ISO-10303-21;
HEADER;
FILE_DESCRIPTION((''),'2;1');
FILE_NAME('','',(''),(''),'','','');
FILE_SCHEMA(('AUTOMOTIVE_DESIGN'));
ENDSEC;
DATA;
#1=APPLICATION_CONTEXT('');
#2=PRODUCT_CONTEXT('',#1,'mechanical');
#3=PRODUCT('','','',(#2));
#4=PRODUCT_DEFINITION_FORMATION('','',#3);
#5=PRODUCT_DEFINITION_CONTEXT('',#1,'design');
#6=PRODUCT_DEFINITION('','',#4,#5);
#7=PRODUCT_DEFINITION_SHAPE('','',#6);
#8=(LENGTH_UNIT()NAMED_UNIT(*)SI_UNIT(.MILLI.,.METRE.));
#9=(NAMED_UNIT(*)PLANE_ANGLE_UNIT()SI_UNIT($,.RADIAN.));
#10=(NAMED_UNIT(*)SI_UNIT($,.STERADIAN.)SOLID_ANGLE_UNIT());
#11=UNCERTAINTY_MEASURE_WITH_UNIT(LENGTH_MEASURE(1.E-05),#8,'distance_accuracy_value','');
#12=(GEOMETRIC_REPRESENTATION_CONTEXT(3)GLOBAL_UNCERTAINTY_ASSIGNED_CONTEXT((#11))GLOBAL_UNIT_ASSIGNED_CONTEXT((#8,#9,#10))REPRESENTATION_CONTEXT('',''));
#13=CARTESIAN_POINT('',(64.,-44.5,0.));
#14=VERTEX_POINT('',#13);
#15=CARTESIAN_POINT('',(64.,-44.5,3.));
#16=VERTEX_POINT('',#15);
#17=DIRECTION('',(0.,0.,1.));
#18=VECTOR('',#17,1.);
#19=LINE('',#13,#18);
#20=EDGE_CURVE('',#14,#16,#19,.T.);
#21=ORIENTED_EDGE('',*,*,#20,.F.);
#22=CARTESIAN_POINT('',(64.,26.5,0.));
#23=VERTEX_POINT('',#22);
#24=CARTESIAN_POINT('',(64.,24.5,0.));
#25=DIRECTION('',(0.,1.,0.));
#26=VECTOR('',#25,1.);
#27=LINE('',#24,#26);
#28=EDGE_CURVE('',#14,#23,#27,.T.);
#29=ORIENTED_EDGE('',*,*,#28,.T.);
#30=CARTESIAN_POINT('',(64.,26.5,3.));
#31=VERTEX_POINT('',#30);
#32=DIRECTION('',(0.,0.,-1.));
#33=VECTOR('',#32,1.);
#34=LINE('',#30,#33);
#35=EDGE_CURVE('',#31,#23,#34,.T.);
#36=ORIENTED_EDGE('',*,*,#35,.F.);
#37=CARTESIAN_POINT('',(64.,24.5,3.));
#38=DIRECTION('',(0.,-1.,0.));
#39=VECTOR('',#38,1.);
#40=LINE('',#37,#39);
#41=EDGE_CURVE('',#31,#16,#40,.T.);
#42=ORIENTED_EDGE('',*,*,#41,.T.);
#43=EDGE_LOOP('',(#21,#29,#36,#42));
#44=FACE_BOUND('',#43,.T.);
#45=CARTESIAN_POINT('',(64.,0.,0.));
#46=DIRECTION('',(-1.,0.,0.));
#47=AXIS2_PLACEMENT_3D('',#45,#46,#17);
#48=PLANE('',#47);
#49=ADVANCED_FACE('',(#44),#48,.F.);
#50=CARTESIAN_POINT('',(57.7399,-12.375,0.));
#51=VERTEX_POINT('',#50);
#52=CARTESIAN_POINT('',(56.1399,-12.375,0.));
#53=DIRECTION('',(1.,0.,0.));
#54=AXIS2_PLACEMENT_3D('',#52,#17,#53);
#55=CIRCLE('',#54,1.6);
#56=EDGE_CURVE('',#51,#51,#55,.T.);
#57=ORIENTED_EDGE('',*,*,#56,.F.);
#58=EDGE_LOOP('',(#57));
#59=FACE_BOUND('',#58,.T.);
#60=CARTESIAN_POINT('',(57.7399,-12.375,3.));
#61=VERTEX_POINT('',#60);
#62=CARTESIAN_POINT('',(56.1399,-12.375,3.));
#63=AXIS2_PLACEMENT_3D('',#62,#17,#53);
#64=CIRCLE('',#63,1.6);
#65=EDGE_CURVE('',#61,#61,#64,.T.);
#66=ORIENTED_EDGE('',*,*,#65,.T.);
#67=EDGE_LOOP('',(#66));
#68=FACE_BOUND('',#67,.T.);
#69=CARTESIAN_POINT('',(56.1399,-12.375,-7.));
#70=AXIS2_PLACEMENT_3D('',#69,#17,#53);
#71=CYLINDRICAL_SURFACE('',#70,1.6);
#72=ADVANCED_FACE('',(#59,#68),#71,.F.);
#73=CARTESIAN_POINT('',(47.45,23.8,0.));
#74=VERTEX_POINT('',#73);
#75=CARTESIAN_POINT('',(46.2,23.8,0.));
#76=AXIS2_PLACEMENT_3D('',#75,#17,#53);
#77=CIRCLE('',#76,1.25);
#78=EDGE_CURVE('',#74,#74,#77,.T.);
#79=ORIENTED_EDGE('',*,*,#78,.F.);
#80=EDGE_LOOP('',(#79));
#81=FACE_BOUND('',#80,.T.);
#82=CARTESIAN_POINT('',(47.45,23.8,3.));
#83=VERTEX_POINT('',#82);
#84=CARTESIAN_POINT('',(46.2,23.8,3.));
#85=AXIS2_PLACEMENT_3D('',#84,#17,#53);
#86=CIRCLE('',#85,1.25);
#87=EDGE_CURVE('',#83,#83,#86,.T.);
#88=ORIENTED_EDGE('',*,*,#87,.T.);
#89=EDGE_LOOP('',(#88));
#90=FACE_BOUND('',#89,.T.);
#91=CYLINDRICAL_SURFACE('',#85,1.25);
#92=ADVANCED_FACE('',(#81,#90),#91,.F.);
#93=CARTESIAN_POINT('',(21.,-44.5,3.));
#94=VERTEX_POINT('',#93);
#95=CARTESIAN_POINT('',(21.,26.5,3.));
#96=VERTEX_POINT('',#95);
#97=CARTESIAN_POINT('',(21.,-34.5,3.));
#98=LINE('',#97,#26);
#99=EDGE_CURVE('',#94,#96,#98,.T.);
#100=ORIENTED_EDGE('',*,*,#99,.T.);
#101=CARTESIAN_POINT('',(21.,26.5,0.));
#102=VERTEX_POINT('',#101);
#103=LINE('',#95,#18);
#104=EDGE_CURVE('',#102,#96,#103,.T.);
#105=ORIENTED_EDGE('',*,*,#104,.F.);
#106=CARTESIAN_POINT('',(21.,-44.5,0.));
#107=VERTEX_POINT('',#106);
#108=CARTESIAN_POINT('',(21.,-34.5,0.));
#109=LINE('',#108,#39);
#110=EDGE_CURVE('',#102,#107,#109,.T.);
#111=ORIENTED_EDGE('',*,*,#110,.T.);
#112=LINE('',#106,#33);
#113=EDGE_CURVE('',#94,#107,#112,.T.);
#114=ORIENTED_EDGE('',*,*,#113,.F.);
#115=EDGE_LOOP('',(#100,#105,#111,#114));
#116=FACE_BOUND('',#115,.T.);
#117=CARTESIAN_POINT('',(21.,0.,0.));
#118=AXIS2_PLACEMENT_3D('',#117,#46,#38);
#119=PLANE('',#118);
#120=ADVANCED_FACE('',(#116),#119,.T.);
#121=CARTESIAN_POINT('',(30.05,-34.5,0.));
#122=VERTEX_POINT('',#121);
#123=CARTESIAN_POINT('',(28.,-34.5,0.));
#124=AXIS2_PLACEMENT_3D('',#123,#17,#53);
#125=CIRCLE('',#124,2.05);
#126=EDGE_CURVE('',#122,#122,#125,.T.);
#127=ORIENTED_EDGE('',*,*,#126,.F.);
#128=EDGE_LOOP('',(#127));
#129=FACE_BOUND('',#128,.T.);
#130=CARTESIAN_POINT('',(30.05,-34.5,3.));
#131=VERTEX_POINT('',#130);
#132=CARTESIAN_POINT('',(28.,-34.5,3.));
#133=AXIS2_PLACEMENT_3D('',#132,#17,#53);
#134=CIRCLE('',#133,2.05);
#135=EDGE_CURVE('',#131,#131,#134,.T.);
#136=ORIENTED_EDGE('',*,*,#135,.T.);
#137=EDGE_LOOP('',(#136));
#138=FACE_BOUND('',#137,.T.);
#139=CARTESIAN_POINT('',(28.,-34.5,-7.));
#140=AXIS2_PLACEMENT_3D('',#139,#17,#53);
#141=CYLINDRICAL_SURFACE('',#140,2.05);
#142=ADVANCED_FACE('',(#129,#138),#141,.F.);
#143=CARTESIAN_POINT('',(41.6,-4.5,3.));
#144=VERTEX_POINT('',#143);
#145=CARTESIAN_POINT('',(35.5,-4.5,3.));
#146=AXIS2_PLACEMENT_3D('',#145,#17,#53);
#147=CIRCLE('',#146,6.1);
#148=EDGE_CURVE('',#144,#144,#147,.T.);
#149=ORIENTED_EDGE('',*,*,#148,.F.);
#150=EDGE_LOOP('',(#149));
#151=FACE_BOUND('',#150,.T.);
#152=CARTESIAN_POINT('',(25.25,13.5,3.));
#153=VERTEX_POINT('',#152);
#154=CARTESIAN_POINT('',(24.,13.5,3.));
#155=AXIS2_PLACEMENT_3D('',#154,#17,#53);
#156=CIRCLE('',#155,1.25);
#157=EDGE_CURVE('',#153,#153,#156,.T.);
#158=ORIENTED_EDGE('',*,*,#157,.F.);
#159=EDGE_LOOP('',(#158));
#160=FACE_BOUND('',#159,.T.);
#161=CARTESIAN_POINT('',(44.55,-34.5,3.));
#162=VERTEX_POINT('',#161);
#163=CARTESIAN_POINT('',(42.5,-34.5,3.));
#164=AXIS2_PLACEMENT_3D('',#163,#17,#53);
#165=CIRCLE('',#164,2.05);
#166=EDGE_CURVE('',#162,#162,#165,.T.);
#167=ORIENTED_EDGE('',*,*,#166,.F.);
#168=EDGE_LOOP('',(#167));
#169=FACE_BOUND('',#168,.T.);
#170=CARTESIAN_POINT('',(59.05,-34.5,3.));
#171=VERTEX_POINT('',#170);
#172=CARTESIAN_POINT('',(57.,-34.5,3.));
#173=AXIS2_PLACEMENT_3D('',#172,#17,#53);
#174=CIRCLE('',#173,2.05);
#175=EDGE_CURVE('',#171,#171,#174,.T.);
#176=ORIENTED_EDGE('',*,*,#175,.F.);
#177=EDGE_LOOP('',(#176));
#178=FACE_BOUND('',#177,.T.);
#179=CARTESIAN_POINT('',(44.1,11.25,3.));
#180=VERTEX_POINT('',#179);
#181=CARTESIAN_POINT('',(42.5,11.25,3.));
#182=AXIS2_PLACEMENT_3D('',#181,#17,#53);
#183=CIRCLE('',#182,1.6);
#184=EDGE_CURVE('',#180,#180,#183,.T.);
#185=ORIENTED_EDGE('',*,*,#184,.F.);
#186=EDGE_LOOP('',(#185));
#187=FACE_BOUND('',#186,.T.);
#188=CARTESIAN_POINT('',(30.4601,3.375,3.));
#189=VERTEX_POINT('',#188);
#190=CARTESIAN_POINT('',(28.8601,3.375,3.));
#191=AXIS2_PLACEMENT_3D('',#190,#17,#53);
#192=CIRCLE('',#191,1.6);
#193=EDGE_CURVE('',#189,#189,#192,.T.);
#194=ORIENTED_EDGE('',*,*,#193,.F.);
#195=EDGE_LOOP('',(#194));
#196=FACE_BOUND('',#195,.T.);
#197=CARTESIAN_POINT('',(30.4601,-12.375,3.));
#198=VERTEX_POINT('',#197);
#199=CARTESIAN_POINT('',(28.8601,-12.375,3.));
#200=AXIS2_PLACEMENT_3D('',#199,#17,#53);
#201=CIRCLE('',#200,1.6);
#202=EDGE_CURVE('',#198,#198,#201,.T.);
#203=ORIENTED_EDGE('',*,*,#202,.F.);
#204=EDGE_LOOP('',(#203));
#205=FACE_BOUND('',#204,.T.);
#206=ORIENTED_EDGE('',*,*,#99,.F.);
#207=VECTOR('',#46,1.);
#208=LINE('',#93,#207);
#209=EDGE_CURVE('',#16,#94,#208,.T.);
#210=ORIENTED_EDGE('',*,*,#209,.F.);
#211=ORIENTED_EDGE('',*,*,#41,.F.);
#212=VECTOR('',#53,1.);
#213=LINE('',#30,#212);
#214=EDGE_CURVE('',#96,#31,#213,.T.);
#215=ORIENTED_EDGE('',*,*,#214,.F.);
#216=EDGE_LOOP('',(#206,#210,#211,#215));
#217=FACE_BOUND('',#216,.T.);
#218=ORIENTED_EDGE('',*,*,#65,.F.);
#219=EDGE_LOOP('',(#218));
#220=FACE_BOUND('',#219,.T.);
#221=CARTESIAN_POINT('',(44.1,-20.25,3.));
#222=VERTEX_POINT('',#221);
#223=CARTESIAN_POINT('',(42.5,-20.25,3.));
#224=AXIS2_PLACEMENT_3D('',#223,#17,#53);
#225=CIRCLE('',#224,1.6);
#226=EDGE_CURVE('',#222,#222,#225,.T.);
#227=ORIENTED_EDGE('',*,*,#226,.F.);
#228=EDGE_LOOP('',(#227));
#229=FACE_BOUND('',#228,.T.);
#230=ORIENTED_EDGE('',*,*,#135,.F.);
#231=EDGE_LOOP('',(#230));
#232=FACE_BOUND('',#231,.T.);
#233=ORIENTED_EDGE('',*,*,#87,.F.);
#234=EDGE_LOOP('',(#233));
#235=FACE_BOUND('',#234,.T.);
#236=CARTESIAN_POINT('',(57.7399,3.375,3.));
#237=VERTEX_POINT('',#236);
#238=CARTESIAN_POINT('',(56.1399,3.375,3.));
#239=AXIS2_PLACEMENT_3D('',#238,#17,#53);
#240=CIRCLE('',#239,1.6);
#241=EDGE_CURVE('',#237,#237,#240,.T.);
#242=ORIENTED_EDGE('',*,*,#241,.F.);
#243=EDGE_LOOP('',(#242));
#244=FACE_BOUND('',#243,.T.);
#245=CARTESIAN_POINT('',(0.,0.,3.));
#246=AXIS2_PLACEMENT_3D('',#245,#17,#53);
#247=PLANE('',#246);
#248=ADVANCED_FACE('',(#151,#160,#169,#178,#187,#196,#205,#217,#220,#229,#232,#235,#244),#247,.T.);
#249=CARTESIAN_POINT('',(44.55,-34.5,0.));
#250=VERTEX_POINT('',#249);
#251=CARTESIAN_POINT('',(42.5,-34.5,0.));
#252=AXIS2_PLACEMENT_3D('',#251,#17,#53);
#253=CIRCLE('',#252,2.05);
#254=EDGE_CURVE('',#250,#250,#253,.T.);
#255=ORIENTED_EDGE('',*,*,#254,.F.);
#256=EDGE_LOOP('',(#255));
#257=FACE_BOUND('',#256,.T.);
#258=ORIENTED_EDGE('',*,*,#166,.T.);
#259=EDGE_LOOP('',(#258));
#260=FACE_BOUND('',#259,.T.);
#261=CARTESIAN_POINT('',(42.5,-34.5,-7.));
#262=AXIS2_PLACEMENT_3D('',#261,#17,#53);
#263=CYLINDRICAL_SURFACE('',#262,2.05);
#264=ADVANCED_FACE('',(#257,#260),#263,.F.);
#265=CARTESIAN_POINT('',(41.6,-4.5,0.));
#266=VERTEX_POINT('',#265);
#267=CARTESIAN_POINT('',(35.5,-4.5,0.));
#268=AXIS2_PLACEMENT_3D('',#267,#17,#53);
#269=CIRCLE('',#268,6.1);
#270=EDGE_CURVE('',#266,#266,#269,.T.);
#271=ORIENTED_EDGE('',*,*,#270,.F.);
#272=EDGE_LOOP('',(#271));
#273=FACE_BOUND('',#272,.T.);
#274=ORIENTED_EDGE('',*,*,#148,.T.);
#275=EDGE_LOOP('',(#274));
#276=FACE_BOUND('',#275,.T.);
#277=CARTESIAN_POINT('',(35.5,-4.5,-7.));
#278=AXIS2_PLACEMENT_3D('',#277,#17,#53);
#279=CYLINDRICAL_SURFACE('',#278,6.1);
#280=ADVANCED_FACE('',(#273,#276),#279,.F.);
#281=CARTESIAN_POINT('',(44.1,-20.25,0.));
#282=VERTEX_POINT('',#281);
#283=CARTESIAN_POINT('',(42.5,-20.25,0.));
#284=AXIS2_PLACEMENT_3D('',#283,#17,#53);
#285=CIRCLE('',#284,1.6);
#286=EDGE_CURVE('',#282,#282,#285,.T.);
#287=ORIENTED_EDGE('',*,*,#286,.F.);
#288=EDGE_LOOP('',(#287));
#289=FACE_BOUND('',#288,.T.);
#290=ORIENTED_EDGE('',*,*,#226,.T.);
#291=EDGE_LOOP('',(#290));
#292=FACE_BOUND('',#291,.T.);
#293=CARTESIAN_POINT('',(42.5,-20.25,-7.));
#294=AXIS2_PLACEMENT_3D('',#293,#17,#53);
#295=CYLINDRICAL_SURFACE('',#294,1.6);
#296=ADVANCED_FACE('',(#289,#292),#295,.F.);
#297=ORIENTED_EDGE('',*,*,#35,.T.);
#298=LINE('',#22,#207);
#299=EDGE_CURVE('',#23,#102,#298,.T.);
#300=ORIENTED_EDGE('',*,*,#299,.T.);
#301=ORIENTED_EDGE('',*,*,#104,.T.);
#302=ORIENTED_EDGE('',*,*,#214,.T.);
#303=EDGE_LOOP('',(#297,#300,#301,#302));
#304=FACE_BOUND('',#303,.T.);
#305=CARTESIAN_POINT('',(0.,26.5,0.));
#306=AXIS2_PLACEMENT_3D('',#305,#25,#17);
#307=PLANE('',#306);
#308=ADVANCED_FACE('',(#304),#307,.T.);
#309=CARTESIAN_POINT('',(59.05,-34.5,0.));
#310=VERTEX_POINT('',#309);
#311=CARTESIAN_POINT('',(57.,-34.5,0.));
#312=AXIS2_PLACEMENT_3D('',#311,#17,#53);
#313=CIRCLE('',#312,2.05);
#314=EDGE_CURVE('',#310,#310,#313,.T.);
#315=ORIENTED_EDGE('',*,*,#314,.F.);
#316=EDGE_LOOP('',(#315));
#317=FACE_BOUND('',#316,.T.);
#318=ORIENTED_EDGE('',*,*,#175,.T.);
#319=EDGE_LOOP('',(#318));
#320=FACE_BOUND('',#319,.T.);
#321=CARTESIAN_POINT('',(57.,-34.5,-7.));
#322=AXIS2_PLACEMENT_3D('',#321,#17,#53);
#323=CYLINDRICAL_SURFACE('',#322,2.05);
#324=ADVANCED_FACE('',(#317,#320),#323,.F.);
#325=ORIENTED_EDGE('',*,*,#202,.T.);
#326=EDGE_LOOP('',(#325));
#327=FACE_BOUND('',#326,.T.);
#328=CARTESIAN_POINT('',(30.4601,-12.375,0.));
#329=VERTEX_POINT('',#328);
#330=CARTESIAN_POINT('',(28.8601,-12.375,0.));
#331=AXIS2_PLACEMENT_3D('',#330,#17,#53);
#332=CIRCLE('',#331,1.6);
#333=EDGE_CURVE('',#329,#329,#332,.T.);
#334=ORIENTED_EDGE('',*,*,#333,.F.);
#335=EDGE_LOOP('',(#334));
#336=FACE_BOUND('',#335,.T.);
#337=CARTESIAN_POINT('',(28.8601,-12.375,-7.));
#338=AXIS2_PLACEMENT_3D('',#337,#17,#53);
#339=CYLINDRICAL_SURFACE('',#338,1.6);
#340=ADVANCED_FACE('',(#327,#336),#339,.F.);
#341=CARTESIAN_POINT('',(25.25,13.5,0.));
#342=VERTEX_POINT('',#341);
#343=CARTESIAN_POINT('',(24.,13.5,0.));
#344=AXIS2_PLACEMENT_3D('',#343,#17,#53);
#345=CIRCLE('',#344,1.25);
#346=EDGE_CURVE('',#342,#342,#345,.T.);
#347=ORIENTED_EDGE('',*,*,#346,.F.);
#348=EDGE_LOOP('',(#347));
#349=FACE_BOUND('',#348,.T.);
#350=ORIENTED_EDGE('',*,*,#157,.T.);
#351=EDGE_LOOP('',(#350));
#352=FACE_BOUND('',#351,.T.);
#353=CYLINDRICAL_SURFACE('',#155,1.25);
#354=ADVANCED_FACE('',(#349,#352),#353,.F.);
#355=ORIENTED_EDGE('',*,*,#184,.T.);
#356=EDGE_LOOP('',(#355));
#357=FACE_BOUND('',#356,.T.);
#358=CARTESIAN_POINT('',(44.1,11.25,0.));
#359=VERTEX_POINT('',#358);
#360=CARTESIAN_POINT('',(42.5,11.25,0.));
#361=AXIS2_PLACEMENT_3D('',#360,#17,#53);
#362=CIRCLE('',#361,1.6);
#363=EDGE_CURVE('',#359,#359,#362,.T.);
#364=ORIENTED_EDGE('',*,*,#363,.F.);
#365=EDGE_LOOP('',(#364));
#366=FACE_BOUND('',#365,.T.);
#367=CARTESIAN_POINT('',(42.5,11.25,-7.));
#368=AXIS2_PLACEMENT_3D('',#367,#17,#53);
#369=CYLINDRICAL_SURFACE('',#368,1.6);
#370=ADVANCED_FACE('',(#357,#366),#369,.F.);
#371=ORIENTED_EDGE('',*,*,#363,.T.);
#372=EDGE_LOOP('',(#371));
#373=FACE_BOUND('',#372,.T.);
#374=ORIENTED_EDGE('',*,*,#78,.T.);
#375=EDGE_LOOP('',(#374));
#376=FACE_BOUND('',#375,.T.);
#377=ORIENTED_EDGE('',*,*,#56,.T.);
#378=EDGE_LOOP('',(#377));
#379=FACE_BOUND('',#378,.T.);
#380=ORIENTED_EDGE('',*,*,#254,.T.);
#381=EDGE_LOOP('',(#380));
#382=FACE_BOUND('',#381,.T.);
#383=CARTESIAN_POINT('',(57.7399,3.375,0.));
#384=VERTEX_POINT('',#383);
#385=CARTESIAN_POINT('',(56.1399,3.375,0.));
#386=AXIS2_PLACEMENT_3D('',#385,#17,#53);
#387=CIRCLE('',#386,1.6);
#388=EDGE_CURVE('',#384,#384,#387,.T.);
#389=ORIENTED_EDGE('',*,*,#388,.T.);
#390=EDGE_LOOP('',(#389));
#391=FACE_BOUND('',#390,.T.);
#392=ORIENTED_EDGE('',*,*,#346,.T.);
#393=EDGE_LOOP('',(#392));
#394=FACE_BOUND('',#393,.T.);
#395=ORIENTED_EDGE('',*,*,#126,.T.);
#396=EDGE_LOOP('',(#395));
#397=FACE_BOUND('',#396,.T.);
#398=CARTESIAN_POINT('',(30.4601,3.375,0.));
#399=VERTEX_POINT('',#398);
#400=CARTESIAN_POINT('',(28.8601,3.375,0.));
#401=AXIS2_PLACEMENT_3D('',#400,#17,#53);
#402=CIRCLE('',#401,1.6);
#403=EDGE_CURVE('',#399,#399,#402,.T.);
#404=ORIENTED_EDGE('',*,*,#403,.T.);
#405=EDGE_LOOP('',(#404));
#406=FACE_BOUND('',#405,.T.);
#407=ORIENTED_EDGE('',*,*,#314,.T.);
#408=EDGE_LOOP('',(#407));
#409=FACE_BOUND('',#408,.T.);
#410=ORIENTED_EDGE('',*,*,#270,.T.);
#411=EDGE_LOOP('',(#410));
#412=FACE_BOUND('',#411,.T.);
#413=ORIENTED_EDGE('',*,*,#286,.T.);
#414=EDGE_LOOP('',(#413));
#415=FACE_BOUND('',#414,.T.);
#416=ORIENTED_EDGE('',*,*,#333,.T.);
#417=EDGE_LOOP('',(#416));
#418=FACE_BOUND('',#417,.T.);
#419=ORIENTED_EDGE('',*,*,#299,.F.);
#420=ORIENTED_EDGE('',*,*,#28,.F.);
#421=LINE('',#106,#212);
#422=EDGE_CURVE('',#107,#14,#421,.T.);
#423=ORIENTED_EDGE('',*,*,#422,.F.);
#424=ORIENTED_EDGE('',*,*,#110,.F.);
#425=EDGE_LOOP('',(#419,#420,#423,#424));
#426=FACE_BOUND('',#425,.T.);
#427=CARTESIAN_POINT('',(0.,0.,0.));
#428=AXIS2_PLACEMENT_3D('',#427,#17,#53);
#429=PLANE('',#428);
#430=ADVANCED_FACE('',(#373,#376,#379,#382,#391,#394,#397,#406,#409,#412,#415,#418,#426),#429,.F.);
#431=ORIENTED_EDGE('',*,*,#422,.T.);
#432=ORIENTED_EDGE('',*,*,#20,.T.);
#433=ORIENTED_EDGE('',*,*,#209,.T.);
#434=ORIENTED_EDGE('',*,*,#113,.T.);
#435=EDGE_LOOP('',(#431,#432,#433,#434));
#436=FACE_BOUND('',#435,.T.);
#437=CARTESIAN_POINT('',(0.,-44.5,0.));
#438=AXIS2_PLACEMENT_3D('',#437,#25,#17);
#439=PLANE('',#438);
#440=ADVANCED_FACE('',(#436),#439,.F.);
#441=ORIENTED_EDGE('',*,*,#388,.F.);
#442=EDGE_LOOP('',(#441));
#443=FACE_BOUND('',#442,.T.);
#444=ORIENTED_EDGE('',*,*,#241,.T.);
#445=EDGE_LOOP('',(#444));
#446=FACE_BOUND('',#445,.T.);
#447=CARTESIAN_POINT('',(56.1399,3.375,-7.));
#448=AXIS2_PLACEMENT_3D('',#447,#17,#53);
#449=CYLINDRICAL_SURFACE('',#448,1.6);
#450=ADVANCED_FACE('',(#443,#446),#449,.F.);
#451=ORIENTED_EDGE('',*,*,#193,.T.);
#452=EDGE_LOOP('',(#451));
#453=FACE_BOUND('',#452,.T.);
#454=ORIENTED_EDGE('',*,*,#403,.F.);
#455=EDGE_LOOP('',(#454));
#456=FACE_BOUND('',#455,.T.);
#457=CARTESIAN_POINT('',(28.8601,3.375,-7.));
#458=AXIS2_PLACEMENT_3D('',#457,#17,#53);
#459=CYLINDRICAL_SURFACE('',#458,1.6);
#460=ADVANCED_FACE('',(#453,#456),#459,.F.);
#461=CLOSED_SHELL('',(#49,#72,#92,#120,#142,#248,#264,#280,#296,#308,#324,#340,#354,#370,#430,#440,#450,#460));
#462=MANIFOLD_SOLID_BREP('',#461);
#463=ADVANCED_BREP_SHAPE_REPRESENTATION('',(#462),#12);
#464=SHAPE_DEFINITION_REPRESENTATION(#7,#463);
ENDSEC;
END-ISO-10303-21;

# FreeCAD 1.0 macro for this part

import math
import FreeCAD as App
import Part
import Sketcher

V = App.Vector
Q = App.Units.Quantity


def add_polygon(sketch, points):
    """Adds a closed chain of lines whose ends are joined by coincident constraints."""
    first, n = sketch.GeometryCount, len(points)
    for a, b in zip(points, points[1:] + points[:1]):
        sketch.addGeometry(Part.LineSegment(App.Vector(*a, 0), App.Vector(*b, 0)), False)
    for i in range(n):
        sketch.addConstraint(Sketcher.Constraint("Coincident", first + i, 2, first + (i + 1) % n, 1))

doc = App.newDocument("Part")
body = doc.addObject("PartDesign::Body", "Body")

# Sketch on XY plane
sketch1 = body.newObject("Sketcher::SketchObject", "Sketch")
sketch1.AttachmentSupport = (doc.getObject("XY_Plane"), [""])
sketch1.MapMode = "FlatFace"
add_polygon(sketch1, [(-20, 14), (-20, -14), (20, -14), (20, 14)])  # lines 0-3
sketch1.addConstraint([
    Sketcher.Constraint("Vertical", 0),
    Sketcher.Constraint("Horizontal", 1),
    Sketcher.Constraint("Vertical", 2),
    Sketcher.Constraint("Horizontal", 3),
    Sketcher.Constraint("Symmetric", 0, 2, 2, 2, -1, 1),
    Sketcher.Constraint("DistanceX", 1, 1, 1, 2, Q("40 mm")),
    Sketcher.Constraint("DistanceY", 0, 2, 0, 1, Q("29 mm")),
])
pad1 = body.newObject("PartDesign::Pad", "Pad")
pad1.Profile = sketch1
pad1.Length = 3

# Sketch on XY plane
sketch2 = body.newObject("Sketcher::SketchObject", "Sketch001")
sketch2.AttachmentSupport = (doc.getObject("XY_Plane"), [""])
sketch2.MapMode = "FlatFace"
sketch2.AttachmentOffset = App.Placement(V(0, 0, 3), App.Rotation())
sketch2.addGeometry([
    Part.ArcOfCircle(Part.Circle(V(-16.5, 10.5, 0), V(0, 0, 1), 2.1), math.radians(0), math.radians(90)),  # 0
    Part.ArcOfCircle(Part.Circle(V(-16.5, 10.5, 0), V(0, 0, 1), 2.1), math.radians(90), math.radians(180)),  # 1
    Part.ArcOfCircle(Part.Circle(V(-16.5, 10.5, 0), V(0, 0, 1), 2.1), math.radians(180), math.radians(360)),  # 2
    Part.ArcOfCircle(Part.Circle(V(-16.5, -10.5, 0), V(0, 0, 1), 2.1), math.radians(-180), math.radians(-90)),  # 3
    Part.ArcOfCircle(Part.Circle(V(-16.5, -10.5, 0), V(0, 0, 1), 2.1), math.radians(-90), math.radians(0)),  # 4
    Part.ArcOfCircle(Part.Circle(V(-16.5, -10.5, 0), V(0, 0, 1), 2.1), math.radians(0), math.radians(180)),  # 5
    Part.ArcOfCircle(Part.Circle(V(16.5, -10.5, 0), V(0, 0, 1), 2.1), math.radians(0), math.radians(270)),  # 6
    Part.ArcOfCircle(Part.Circle(V(16.5, -10.5, 0), V(0, 0, 1), 2.1), math.radians(-90), math.radians(0)),  # 7
    Part.ArcOfCircle(Part.Circle(V(16.5, 10.5, 0), V(0, 0, 1), 2.1), math.radians(0), math.radians(90)),  # 8
    Part.ArcOfCircle(Part.Circle(V(16.5, 10.5, 0), V(0, 0, 1), 2.1), math.radians(90), math.radians(360)),  # 9
], False)
sketch2.addConstraint([
    Sketcher.Constraint("Tangent", 0, 2, 1, 1),
    Sketcher.Constraint("Tangent", 1, 2, 2, 1),
    Sketcher.Constraint("Tangent", 2, 2, 0, 1),
    Sketcher.Constraint("Tangent", 3, 2, 4, 1),
    Sketcher.Constraint("Tangent", 4, 2, 5, 1),
    Sketcher.Constraint("Tangent", 5, 2, 3, 1),
    Sketcher.Constraint("Tangent", 6, 1, 7, 2),
    Sketcher.Constraint("Coincident", 7, 1, 6, 2),
    Sketcher.Constraint("Tangent", 8, 1, 9, 2),
    Sketcher.Constraint("Coincident", 9, 1, 8, 2),
    Sketcher.Constraint("Equal", 2, 3),
    Sketcher.Constraint("Equal", 5, 6),
    Sketcher.Constraint("Equal", 7, 8),
    Sketcher.Constraint("Symmetric", 0, 3, 6, 3, -1, 1),
    Sketcher.Constraint("Symmetric", 3, 3, 8, 3, -1, 1),
    Sketcher.Constraint("Symmetric", 3, 3, 6, 3, -2),
    Sketcher.Constraint("Horizontal", 9, 3, 1, 2),
    Sketcher.Constraint("Horizontal", 1, 2, 2, 2),
    Sketcher.Constraint("Horizontal", 7, 3, 4, 2),
    Sketcher.Constraint("Horizontal", 4, 2, 5, 2),
    Sketcher.Constraint("Horizontal", 5, 2, 6, 1),
    Sketcher.Constraint("Horizontal", 2, 2, 8, 1),
    Sketcher.Constraint("Vertical", 5, 3, 0, 2),
    Sketcher.Constraint("Vertical", 0, 2, 3, 2),
    Sketcher.Constraint("Vertical", 9, 3, 7, 1),
    Sketcher.Constraint("Vertical", 7, 1, 9, 1),
    Sketcher.Constraint("Radius", 0, Q("2.1 mm")),
    Sketcher.Constraint("DistanceY", 3, 3, 0, 3, Q("21 mm")),
    Sketcher.Constraint("DistanceX", 3, 3, 6, 3, Q("33 mm")),
])
pocket1 = body.newObject("PartDesign::Pocket", "Pocket")
pocket1.Profile = sketch2
pocket1.Length = 3

# Sketch on XZ plane
sketch3 = body.newObject("Sketcher::SketchObject", "Sketch002")
sketch3.AttachmentSupport = (doc.getObject("XZ_Plane"), [""])
sketch3.MapMode = "FlatFace"
sketch3.AttachmentOffset = App.Placement(V(0, 0, 14.5), App.Rotation())
add_polygon(sketch3, [(-20, 3), (-20, 0), (20, 0), (20, 3)])  # lines 0-3
sketch3.addConstraint([
    Sketcher.Constraint("Vertical", 0),
    Sketcher.Constraint("Horizontal", 1),
    Sketcher.Constraint("Vertical", 2),
    Sketcher.Constraint("Horizontal", 3),
    Sketcher.Constraint("Symmetric", 0, 2, 1, 2, -1, 1),
    Sketcher.Constraint("DistanceX", 1, 1, 1, 2, Q("40 mm")),
    Sketcher.Constraint("DistanceY", 0, 2, 0, 1, Q("3 mm")),
])
pad2 = body.newObject("PartDesign::Pad", "Pad001")
pad2.Profile = sketch3
pad2.Length = 10

# Sketch on XZ plane
sketch4 = body.newObject("Sketcher::SketchObject", "Sketch003")
sketch4.AttachmentSupport = (doc.getObject("XZ_Plane"), [""])
sketch4.MapMode = "FlatFace"
sketch4.AttachmentOffset = App.Placement(V(0, 0, -14.5), App.Rotation())
add_polygon(sketch4, [(-20, 0), (-20, 3), (20, 3), (20, 0)])  # lines 0-3
sketch4.addConstraint([
    Sketcher.Constraint("Vertical", 0),
    Sketcher.Constraint("Horizontal", 1),
    Sketcher.Constraint("Vertical", 2),
    Sketcher.Constraint("Horizontal", 3),
    Sketcher.Constraint("Symmetric", 2, 2, 3, 2, -1, 1),
    Sketcher.Constraint("DistanceX", 1, 1, 1, 2, Q("40 mm")),
    Sketcher.Constraint("DistanceY", 0, 1, 0, 2, Q("3 mm")),
])
pad3 = body.newObject("PartDesign::Pad", "Pad002")
pad3.Profile = sketch4
pad3.Length = 10
pad3.Reversed = True

# Sketch on YZ plane
sketch5 = body.newObject("Sketcher::SketchObject", "Sketch004")
sketch5.AttachmentSupport = (doc.getObject("YZ_Plane"), [""])
sketch5.MapMode = "FlatFace"
sketch5.AttachmentOffset = App.Placement(V(0, 0, 20), App.Rotation())
add_polygon(sketch5, [(24.5, 3), (-24.5, 3), (-24.5, 0), (24.5, 0)])  # lines 0-3
sketch5.addConstraint([
    Sketcher.Constraint("Horizontal", 0),
    Sketcher.Constraint("Vertical", 1),
    Sketcher.Constraint("Horizontal", 2),
    Sketcher.Constraint("Vertical", 3),
    Sketcher.Constraint("Symmetric", 1, 2, 2, 2, -1, 1),
    Sketcher.Constraint("DistanceX", 0, 2, 0, 1, Q("49 mm")),
    Sketcher.Constraint("DistanceY", 1, 2, 1, 1, Q("3 mm")),
])
pad4 = body.newObject("PartDesign::Pad", "Pad003")
pad4.Profile = sketch5
pad4.Length = 42

# Sketch on YZ plane
sketch6 = body.newObject("Sketcher::SketchObject", "Sketch005")
sketch6.AttachmentSupport = (doc.getObject("YZ_Plane"), [""])
sketch6.MapMode = "FlatFace"
sketch6.AttachmentOffset = App.Placement(V(0, 0, -20), App.Rotation())
add_polygon(sketch6, [(24.5, 0), (-24.5, 0), (-24.5, 3), (24.5, 3)])  # lines 0-3
sketch6.addConstraint([
    Sketcher.Constraint("Horizontal", 0),
    Sketcher.Constraint("Vertical", 1),
    Sketcher.Constraint("Horizontal", 2),
    Sketcher.Constraint("Vertical", 3),
    Sketcher.Constraint("Symmetric", 0, 2, 3, 2, -1, 1),
    Sketcher.Constraint("DistanceX", 0, 2, 0, 1, Q("49 mm")),
    Sketcher.Constraint("DistanceY", 1, 1, 1, 2, Q("3 mm")),
])
pad5 = body.newObject("PartDesign::Pad", "Pad004")
pad5.Profile = sketch6
pad5.Length = 2
pad5.Reversed = True

# Sketch on YZ plane
sketch7 = body.newObject("Sketcher::SketchObject", "Sketch006")
sketch7.AttachmentSupport = (doc.getObject("YZ_Plane"), [""])
sketch7.MapMode = "FlatFace"
sketch7.AttachmentOffset = App.Placement(V(0, 0, 62), App.Rotation())
add_polygon(sketch7, [(24.5, 3), (-24.5, 3), (-24.5, 0), (24.5, 0)])  # lines 0-3
sketch7.addConstraint([
    Sketcher.Constraint("Horizontal", 0),
    Sketcher.Constraint("Vertical", 1),
    Sketcher.Constraint("Horizontal", 2),
    Sketcher.Constraint("Vertical", 3),
    Sketcher.Constraint("Symmetric", 1, 2, 2, 2, -1, 1),
    Sketcher.Constraint("DistanceX", 0, 2, 0, 1, Q("49 mm")),
    Sketcher.Constraint("DistanceY", 1, 2, 1, 1, Q("3 mm")),
])
pad6 = body.newObject("PartDesign::Pad", "Pad005")
pad6.Profile = sketch7
pad6.Length = 2

# Sketch on XZ plane
sketch8 = body.newObject("Sketcher::SketchObject", "Sketch007")
sketch8.AttachmentSupport = (doc.getObject("XZ_Plane"), [""])
sketch8.MapMode = "FlatFace"
sketch8.AttachmentOffset = App.Placement(V(0, 0, 24.5), App.Rotation())
add_polygon(sketch8, [(-22, 3), (-22, 0), (64, 0), (64, 3)])  # lines 0-3
sketch8.addConstraint([
    Sketcher.Constraint("Vertical", 0),
    Sketcher.Constraint("Horizontal", 1),
    Sketcher.Constraint("Vertical", 2),
    Sketcher.Constraint("Horizontal", 3),
    Sketcher.Constraint("PointOnObject", 0, 2, -1),
    Sketcher.Constraint("DistanceX", 1, 1, 1, 2, Q("86 mm")),
    Sketcher.Constraint("DistanceY", 0, 2, 0, 1, Q("3 mm")),
    Sketcher.Constraint("DistanceX", 0, 2, -1, 1, Q("22 mm")),
])
pad7 = body.newObject("PartDesign::Pad", "Pad006")
pad7.Profile = sketch8
pad7.Length = 10

# Sketch on XZ plane
sketch9 = body.newObject("Sketcher::SketchObject", "Sketch008")
sketch9.AttachmentSupport = (doc.getObject("XZ_Plane"), [""])
sketch9.MapMode = "FlatFace"
sketch9.AttachmentOffset = App.Placement(V(0, 0, -24.5), App.Rotation())
add_polygon(sketch9, [(-22, 0), (-22, 3), (64, 3), (64, 0)])  # lines 0-3
sketch9.addConstraint([
    Sketcher.Constraint("Vertical", 0),
    Sketcher.Constraint("Horizontal", 1),
    Sketcher.Constraint("Vertical", 2),
    Sketcher.Constraint("Horizontal", 3),
    Sketcher.Constraint("PointOnObject", 2, 2, -1),
    Sketcher.Constraint("DistanceX", 1, 1, 1, 2, Q("86 mm")),
    Sketcher.Constraint("DistanceY", 0, 1, 0, 2, Q("3 mm")),
    Sketcher.Constraint("DistanceX", 0, 2, -1, 1, Q("22 mm")),
])
pad8 = body.newObject("PartDesign::Pad", "Pad007")
pad8.Profile = sketch9
pad8.Length = 10
pad8.Reversed = True

# Sketch on YZ plane
sketch10 = body.newObject("Sketcher::SketchObject", "Sketch009")
sketch10.AttachmentSupport = (doc.getObject("YZ_Plane"), [""])
sketch10.MapMode = "FlatFace"
sketch10.AttachmentOffset = App.Placement(V(0, 0, -22), App.Rotation())
add_polygon(sketch10, [(34.5, 0), (-34.5, 0), (-34.5, 3), (34.5, 3)])  # lines 0-3
sketch10.addConstraint([
    Sketcher.Constraint("Horizontal", 0),
    Sketcher.Constraint("Vertical", 1),
    Sketcher.Constraint("Horizontal", 2),
    Sketcher.Constraint("Vertical", 3),
    Sketcher.Constraint("Symmetric", 0, 2, 3, 2, -1, 1),
    Sketcher.Constraint("DistanceX", 0, 2, 0, 1, Q("69 mm")),
    Sketcher.Constraint("DistanceY", 1, 1, 1, 2, Q("3 mm")),
])
pocket2 = body.newObject("PartDesign::Pocket", "Pocket001")
pocket2.Profile = sketch10
pocket2.Length = 43
pocket2.Reversed = True

# Sketch on XZ plane
sketch11 = body.newObject("Sketcher::SketchObject", "Sketch010")
sketch11.AttachmentSupport = (doc.getObject("XZ_Plane"), [""])
sketch11.MapMode = "FlatFace"
sketch11.AttachmentOffset = App.Placement(V(0, 0, 34.5), App.Rotation())
add_polygon(sketch11, [(21, 3), (21, 0), (64, 0), (64, 3)])  # lines 0-3
sketch11.addConstraint([
    Sketcher.Constraint("Vertical", 0),
    Sketcher.Constraint("Horizontal", 1),
    Sketcher.Constraint("Vertical", 2),
    Sketcher.Constraint("Horizontal", 3),
    Sketcher.Constraint("PointOnObject", 0, 2, -1),
    Sketcher.Constraint("DistanceX", 1, 1, 1, 2, Q("43 mm")),
    Sketcher.Constraint("DistanceY", 0, 2, 0, 1, Q("3 mm")),
    Sketcher.Constraint("DistanceX", -1, 1, 0, 2, Q("21 mm")),
])
pad9 = body.newObject("PartDesign::Pad", "Pad008")
pad9.Profile = sketch11
pad9.Length = 20

# Sketch on XY plane
sketch12 = body.newObject("Sketcher::SketchObject", "Sketch011")
sketch12.AttachmentSupport = (doc.getObject("XY_Plane"), [""])
sketch12.MapMode = "FlatFace"
sketch12.AttachmentOffset = App.Placement(V(0, 0, 3), App.Rotation())
sketch12.addGeometry([
    Part.Circle(V(28, -34.5, 0), V(0, 0, 1), 2),
    Part.Circle(V(57, -34.5, 0), V(0, 0, 1), 2),
], False)
sketch12.addConstraint([
    Sketcher.Constraint("Equal", 0, 1),
    Sketcher.Constraint("Horizontal", 0, 3, 1, 3),
    Sketcher.Constraint("Diameter", 0, Q("4.1 mm")),
    Sketcher.Constraint("DistanceX", -1, 1, 0, 3, Q("28 mm")),
    Sketcher.Constraint("DistanceX", -1, 1, 1, 3, Q("57 mm")),
    Sketcher.Constraint("DistanceY", 0, 3, -1, 1, Q("34.5 mm")),
])
pocket3 = body.newObject("PartDesign::Pocket", "Pocket002")
pocket3.Profile = sketch12
pocket3.Length = 10

# Sketch on XZ plane
sketch13 = body.newObject("Sketcher::SketchObject", "Sketch012")
sketch13.AttachmentSupport = (doc.getObject("XZ_Plane"), [""])
sketch13.MapMode = "FlatFace"
sketch13.AttachmentOffset = App.Placement(V(0, 0, 54.5), App.Rotation())
add_polygon(sketch13, [(21, 3), (21, 0), (64, 0), (64, 3)])  # lines 0-3
sketch13.addConstraint([
    Sketcher.Constraint("Vertical", 0),
    Sketcher.Constraint("Horizontal", 1),
    Sketcher.Constraint("Vertical", 2),
    Sketcher.Constraint("Horizontal", 3),
    Sketcher.Constraint("PointOnObject", 0, 2, -1),
    Sketcher.Constraint("DistanceX", 1, 1, 1, 2, Q("43 mm")),
    Sketcher.Constraint("DistanceY", 0, 2, 0, 1, Q("3 mm")),
    Sketcher.Constraint("DistanceX", -1, 1, 0, 2, Q("21 mm")),
])
pad10 = body.newObject("PartDesign::Pad", "Pad009")
pad10.Profile = sketch13
pad10.Length = 10

# Sketch on XZ plane
sketch14 = body.newObject("Sketcher::SketchObject", "Sketch013")
sketch14.AttachmentSupport = (doc.getObject("XZ_Plane"), [""])
sketch14.MapMode = "FlatFace"
sketch14.AttachmentOffset = App.Placement(V(0, 0, -34.5), App.Rotation())
add_polygon(sketch14, [(21, 0), (21, 3), (64, 3), (64, 0)])  # lines 0-3
sketch14.addConstraint([
    Sketcher.Constraint("Vertical", 0),
    Sketcher.Constraint("Horizontal", 1),
    Sketcher.Constraint("Vertical", 2),
    Sketcher.Constraint("Horizontal", 3),
    Sketcher.Constraint("PointOnObject", 2, 2, -1),
    Sketcher.Constraint("DistanceX", 1, 1, 1, 2, Q("43 mm")),
    Sketcher.Constraint("DistanceY", 0, 1, 0, 2, Q("3 mm")),
    Sketcher.Constraint("DistanceX", -1, 1, 0, 2, Q("21 mm")),
])
pocket4 = body.newObject("PartDesign::Pocket", "Pocket003")
pocket4.Profile = sketch14
pocket4.Length = 10
pocket4.Reversed = True

# Sketch on XZ plane
sketch15 = body.newObject("Sketcher::SketchObject", "Sketch014")
sketch15.AttachmentSupport = (doc.getObject("XZ_Plane"), [""])
sketch15.MapMode = "FlatFace"
sketch15.AttachmentOffset = App.Placement(V(0, 0, -24.5), App.Rotation())
add_polygon(sketch15, [(21, 0), (21, 3), (64, 3), (64, 0)])  # lines 0-3
sketch15.addConstraint([
    Sketcher.Constraint("Vertical", 0),
    Sketcher.Constraint("Horizontal", 1),
    Sketcher.Constraint("Vertical", 2),
    Sketcher.Constraint("Horizontal", 3),
    Sketcher.Constraint("PointOnObject", 2, 2, -1),
    Sketcher.Constraint("DistanceX", 1, 1, 1, 2, Q("43 mm")),
    Sketcher.Constraint("DistanceY", 0, 1, 0, 2, Q("3 mm")),
    Sketcher.Constraint("DistanceX", -1, 1, 0, 2, Q("21 mm")),
])
pad11 = body.newObject("PartDesign::Pad", "Pad010")
pad11.Profile = sketch15
pad11.Length = 10
pad11.Reversed = True

# Sketch on XY plane
sketch16 = body.newObject("Sketcher::SketchObject", "Sketch015")
sketch16.AttachmentSupport = (doc.getObject("XY_Plane"), [""])
sketch16.MapMode = "FlatFace"
sketch16.AttachmentOffset = App.Placement(V(0, 0, 3), App.Rotation())
sketch16.addGeometry([
    Part.Circle(V(42.5, 11.2, 0), V(0, 0, 1), 1.6),  # 0
    Part.Circle(V(28.9, 3.4, 0), V(0, 0, 1), 1.6),  # 1
    Part.Circle(V(56.1, 3.4, 0), V(0, 0, 1), 1.6),  # 2
    Part.Circle(V(35.5, -4.5, 0), V(0, 0, 1), 6.1),  # 3
    Part.Circle(V(56.1, -12.4, 0), V(0, 0, 1), 1.6),  # 4
    Part.Circle(V(42.5, -20.2, 0), V(0, 0, 1), 1.6),  # 5
    Part.Circle(V(28.9, -12.4, 0), V(0, 0, 1), 1.6),  # 6
], False)
sketch16.addConstraint([
    Sketcher.Constraint("Equal", 0, 1),
    Sketcher.Constraint("Equal", 1, 2),
    Sketcher.Constraint("Equal", 2, 4),
    Sketcher.Constraint("Equal", 4, 5),
    Sketcher.Constraint("Equal", 5, 6),
    Sketcher.Constraint("Horizontal", 1, 3, 2, 3),
    Sketcher.Constraint("Horizontal", 4, 3, 6, 3),
    Sketcher.Constraint("Vertical", 2, 3, 4, 3),
    Sketcher.Constraint("Vertical", 0, 3, 5, 3),
    Sketcher.Constraint("Vertical", 1, 3, 6, 3),
    Sketcher.Constraint("Diameter", 0, Q("3.2 mm")),
    Sketcher.Constraint("Diameter", 3, Q("12.2 mm")),
    Sketcher.Constraint("DistanceX", 3, 3, 0, 3, Q("7 mm")),
    Sketcher.Constraint("DistanceX", -1, 1, 0, 3, Q("42.5 mm")),
    Sketcher.Constraint("DistanceY", 3, 3, -1, 1, Q("4.5 mm")),
    Sketcher.Constraint("DistanceY", 5, 3, 0, 3, Q("31.5 mm")),
    Sketcher.Constraint("DistanceY", -1, 1, 0, 3, Q("11.25 mm")),
    Sketcher.Constraint("DistanceY", 4, 3, 2, 3, Q("15.75 mm")),
    Sketcher.Constraint("DistanceY", -1, 1, 1, 3, Q("3.375 mm")),
    Sketcher.Constraint("DistanceX", -1, 1, 1, 3, Q("28.8601 mm")),
    Sketcher.Constraint("DistanceX", -1, 1, 2, 3, Q("56.1399 mm")),
])
pocket5 = body.newObject("PartDesign::Pocket", "Pocket004")
pocket5.Profile = sketch16
pocket5.Length = 10

# Sketch on XZ plane
sketch17 = body.newObject("Sketcher::SketchObject", "Sketch016")
sketch17.AttachmentSupport = (doc.getObject("XZ_Plane"), [""])
sketch17.MapMode = "FlatFace"
sketch17.AttachmentOffset = App.Placement(V(0, 0, 64.5), App.Rotation())
add_polygon(sketch17, [(64, 0), (64, 3), (21, 3), (21, 0)])  # lines 0-3
sketch17.addConstraint([
    Sketcher.Constraint("Vertical", 0),
    Sketcher.Constraint("Horizontal", 1),
    Sketcher.Constraint("Vertical", 2),
    Sketcher.Constraint("Horizontal", 3),
    Sketcher.Constraint("PointOnObject", 2, 2, -1),
    Sketcher.Constraint("DistanceX", 1, 2, 1, 1, Q("43 mm")),
    Sketcher.Constraint("DistanceY", 0, 1, 0, 2, Q("3 mm")),
    Sketcher.Constraint("DistanceX", -1, 1, 0, 2, Q("64 mm")),
])
pocket6 = body.newObject("PartDesign::Pocket", "Pocket005")
pocket6.Profile = sketch17
pocket6.Length = 20

# Sketch on XY plane
sketch18 = body.newObject("Sketcher::SketchObject", "Sketch017")
sketch18.AttachmentSupport = (doc.getObject("XY_Plane"), [""])
sketch18.MapMode = "FlatFace"
sketch18.AttachmentOffset = App.Placement(V(0, 0, 3), App.Rotation())
sketch18.addGeometry(Part.Circle(V(42.5, -34.5, 0), V(0, 0, 1), 2), False)
sketch18.addConstraint([
    Sketcher.Constraint("Diameter", 0, Q("4.1 mm")),
    Sketcher.Constraint("DistanceX", -1, 1, 0, 3, Q("42.5 mm")),
    Sketcher.Constraint("DistanceY", 0, 3, -1, 1, Q("34.5 mm")),
])
pocket7 = body.newObject("PartDesign::Pocket", "Pocket006")
pocket7.Profile = sketch18
pocket7.Length = 10

# Sketch on XY plane
sketch19 = body.newObject("Sketcher::SketchObject", "Sketch018")
sketch19.AttachmentSupport = (doc.getObject("XY_Plane"), [""])
sketch19.MapMode = "FlatFace"
sketch19.AttachmentOffset = App.Placement(V(0, 0, 3), App.Rotation())
sketch19.addGeometry([
    Part.Circle(V(24, 13.5, 0), V(0, 0, 1), 1.2),
    Part.Circle(V(46.2, 23.8, 0), V(0, 0, 1), 1.2),
], False)
sketch19.addConstraint([
    Sketcher.Constraint("Equal", 0, 1),
    Sketcher.Constraint("Diameter", 0, Q("2.5 mm")),
    Sketcher.Constraint("DistanceX", -1, 1, 0, 3, Q("24 mm")),
    Sketcher.Constraint("DistanceY", -1, 1, 0, 3, Q("13.5 mm")),
    Sketcher.Constraint("DistanceX", -1, 1, 1, 3, Q("46.2 mm")),
    Sketcher.Constraint("DistanceY", -1, 1, 1, 3, Q("23.8 mm")),
])
doc.recompute()
hole = body.newObject("PartDesign::Hole", "Hole")
hole.Profile = sketch19
hole.ThreadType = "None"
hole.Diameter = 2.5
hole.DepthType = "Dimension"
hole.Depth = 8.5
hole.DrillPoint = "Angled"
hole.DrillPointAngle = 118

# Sketch on XY plane
sketch20 = body.newObject("Sketcher::SketchObject", "Sketch019")
sketch20.AttachmentSupport = (doc.getObject("XY_Plane"), [""])
sketch20.MapMode = "FlatFace"
sketch20.addGeometry(Part.Circle(V(29.2, -61, 0), V(0, 0, 1), 1.2), False)
sketch20.addConstraint([
    Sketcher.Constraint("Diameter", 0, Q("2.5 mm")),
    Sketcher.Constraint("DistanceY", 0, 3, -1, 1, Q("61.022509 mm")),
    Sketcher.Constraint("DistanceX", -1, 1, 0, 3, Q("29.171215 mm")),
])
doc.recompute()
hole2 = body.newObject("PartDesign::Hole", "Hole001")
hole2.Profile = sketch20
hole2.ThreadType = "None"
hole2.Diameter = 2.5
hole2.DepthType = "Dimension"
hole2.Depth = 8.5
hole2.DrillPoint = "Angled"
hole2.DrillPointAngle = 118

# Sketch on XZ plane
sketch21 = body.newObject("Sketcher::SketchObject", "Sketch020")
sketch21.AttachmentSupport = (doc.getObject("XZ_Plane"), [""])
sketch21.MapMode = "FlatFace"
sketch21.AttachmentOffset = App.Placement(V(0, 0, -34.5), App.Rotation())
add_polygon(sketch21, [(21, 0), (21, 3), (64, 3), (64, 0)])  # lines 0-3
sketch21.addConstraint([
    Sketcher.Constraint("Vertical", 0),
    Sketcher.Constraint("Horizontal", 1),
    Sketcher.Constraint("Vertical", 2),
    Sketcher.Constraint("Horizontal", 3),
    Sketcher.Constraint("PointOnObject", 2, 2, -1),
    Sketcher.Constraint("DistanceX", 1, 1, 1, 2, Q("43 mm")),
    Sketcher.Constraint("DistanceY", 0, 1, 0, 2, Q("3 mm")),
    Sketcher.Constraint("DistanceX", -1, 1, 0, 2, Q("21 mm")),
])
pocket8 = body.newObject("PartDesign::Pocket", "Pocket007")
pocket8.Profile = sketch21
pocket8.Length = 8
pocket8.Reversed = True

doc.recompute()
